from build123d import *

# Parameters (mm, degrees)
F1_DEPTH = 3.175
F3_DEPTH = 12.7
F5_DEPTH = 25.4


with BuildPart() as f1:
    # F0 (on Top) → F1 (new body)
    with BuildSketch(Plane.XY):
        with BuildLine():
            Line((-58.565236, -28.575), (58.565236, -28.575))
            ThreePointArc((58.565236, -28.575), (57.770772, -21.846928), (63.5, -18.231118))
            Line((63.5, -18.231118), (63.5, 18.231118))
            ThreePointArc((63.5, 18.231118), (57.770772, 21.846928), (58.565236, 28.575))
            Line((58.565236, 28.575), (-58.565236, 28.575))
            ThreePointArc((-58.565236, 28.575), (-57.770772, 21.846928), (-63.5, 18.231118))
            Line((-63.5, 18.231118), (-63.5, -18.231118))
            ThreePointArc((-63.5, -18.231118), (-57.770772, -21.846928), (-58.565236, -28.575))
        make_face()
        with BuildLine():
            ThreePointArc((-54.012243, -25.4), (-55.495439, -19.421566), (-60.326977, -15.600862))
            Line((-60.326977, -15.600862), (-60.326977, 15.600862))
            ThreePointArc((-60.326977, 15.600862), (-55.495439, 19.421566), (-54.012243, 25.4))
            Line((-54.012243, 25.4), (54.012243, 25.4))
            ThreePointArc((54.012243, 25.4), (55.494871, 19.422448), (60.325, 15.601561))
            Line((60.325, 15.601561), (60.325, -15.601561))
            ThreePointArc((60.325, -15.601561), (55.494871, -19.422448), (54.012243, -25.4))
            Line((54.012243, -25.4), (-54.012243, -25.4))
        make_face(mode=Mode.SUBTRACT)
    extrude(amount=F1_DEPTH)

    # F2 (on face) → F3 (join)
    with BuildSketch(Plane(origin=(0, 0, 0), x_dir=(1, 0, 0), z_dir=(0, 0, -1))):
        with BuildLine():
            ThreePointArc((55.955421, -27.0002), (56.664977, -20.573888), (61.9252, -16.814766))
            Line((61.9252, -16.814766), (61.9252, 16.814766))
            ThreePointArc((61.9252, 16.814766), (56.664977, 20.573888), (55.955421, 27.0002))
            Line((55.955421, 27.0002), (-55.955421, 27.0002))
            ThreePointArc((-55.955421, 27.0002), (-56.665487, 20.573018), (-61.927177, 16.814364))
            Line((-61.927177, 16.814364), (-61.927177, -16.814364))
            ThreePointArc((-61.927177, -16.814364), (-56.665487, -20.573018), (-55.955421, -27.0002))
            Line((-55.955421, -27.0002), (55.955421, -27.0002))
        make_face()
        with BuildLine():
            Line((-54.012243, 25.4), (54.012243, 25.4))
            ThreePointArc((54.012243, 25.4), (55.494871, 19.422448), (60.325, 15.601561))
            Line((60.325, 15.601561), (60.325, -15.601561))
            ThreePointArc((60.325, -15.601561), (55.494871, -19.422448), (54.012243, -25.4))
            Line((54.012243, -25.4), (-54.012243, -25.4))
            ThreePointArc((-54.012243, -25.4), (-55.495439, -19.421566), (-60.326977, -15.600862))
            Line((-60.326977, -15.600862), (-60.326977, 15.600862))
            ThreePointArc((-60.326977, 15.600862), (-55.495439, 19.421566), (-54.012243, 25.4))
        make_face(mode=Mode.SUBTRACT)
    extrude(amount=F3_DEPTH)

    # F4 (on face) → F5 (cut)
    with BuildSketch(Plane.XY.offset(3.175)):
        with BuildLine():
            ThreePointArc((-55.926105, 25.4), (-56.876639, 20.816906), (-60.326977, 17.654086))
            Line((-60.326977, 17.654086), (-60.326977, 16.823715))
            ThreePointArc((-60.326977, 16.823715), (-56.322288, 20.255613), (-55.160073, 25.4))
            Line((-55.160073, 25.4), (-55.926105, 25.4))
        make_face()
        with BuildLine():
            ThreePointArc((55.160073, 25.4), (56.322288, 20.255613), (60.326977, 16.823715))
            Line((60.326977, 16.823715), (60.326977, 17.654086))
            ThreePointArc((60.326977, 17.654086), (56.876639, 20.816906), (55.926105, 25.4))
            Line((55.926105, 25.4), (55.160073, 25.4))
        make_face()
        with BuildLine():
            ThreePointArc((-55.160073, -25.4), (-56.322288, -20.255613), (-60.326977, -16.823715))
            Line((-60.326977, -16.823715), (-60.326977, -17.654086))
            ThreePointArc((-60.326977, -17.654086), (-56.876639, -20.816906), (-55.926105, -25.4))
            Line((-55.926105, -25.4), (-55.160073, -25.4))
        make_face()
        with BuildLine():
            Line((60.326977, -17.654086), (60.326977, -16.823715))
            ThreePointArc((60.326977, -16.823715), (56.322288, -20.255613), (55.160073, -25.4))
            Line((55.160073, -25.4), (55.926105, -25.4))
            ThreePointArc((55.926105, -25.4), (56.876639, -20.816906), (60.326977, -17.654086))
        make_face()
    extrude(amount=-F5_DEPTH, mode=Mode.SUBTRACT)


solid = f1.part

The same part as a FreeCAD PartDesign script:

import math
import FreeCAD as App
import Part
import Sketcher

V = App.Vector
Q = App.Units.Quantity

doc = App.newDocument("Part")
params = doc.addObject("Spreadsheet::Sheet", "Params")
for row, (alias, value) in enumerate([
    ("sketch1_radius", "0.25 in"),
    ("sketch1_radius2", "0.3749999 in"),
    ("sketch1_width", "0.1249999 in"),
    ("pad1_length", "0.125 in"),
    ("sketch2_radius", "0.312 in"),
    ("sketch2_radius2", "0.3749999 in"),
    ("pad2_length", "0.5 in"),
    ("sketch3_radius", "0.3000001 in"),
    ("sketch3_radius2", "0.33 in"),
    ("pocket1_length", "1 in"),
], start=1):
    params.set(f"A{row}", alias)
    params.set(f"B{row}", "=" + value)
    params.setAlias(f"B{row}", alias)

body = doc.addObject("PartDesign::Body", "Body")

sketch1 = body.newObject("Sketcher::SketchObject", "Sketch")
sketch1.AttachmentSupport = (doc.getObject("XY_Plane"), [""])
sketch1.MapMode = "FlatFace"
sketch1.addGeometry([
    Part.LineSegment(V(-59, -29, 0), V(59, -29, 0)),
    Part.ArcOfCircle(Part.Circle(V(64, -25, 0), V(0, 0, 1), 6), math.radians(90), math.radians(219)),
    Part.LineSegment(V(64, -18, 0), V(64, 18, 0)),
    Part.ArcOfCircle(Part.Circle(V(64, 25, 0), V(0, 0, 1), 6), math.radians(141), math.radians(270)),
    Part.LineSegment(V(59, 29, 0), V(-59, 29, 0)),
    Part.ArcOfCircle(Part.Circle(V(-64, 25, 0), V(0, 0, 1), 6), math.radians(-90), math.radians(39)),
    Part.LineSegment(V(-64, 18, 0), V(-64, -18, 0)),
    Part.ArcOfCircle(Part.Circle(V(-64, -25, 0), V(0, 0, 1), 6), math.radians(-39), math.radians(90)),
    Part.LineSegment(V(54, -25, 0), V(-54, -25, 0)),
    Part.ArcOfCircle(Part.Circle(V(-64, -25, 0), V(0, 0, 1), 10), math.radians(-5), math.radians(71)),
    Part.LineSegment(V(-60, -16, 0), V(-60, 16, 0)),
    Part.ArcOfCircle(Part.Circle(V(-64, 25, 0), V(0, 0, 1), 10), math.radians(-71), math.radians(5)),
    Part.LineSegment(V(-54, 25, 0), V(54, 25, 0)),
    Part.ArcOfCircle(Part.Circle(V(64, 25, 0), V(0, 0, 1), 10), math.radians(175), math.radians(251)),
    Part.LineSegment(V(60, 16, 0), V(60, -16, 0)),
    Part.ArcOfCircle(Part.Circle(V(64, -25, 0), V(0, 0, 1), 10), math.radians(109), math.radians(185)),
], False)
sketch1.addConstraint([
    Sketcher.Constraint("Coincident", 0, 2, 1, 2),
    Sketcher.Constraint("Coincident", 1, 1, 2, 1),
    Sketcher.Constraint("Coincident", 2, 2, 3, 2),
    Sketcher.Constraint("Coincident", 3, 1, 4, 1),
    Sketcher.Constraint("Coincident", 4, 2, 5, 2),
    Sketcher.Constraint("Coincident", 5, 1, 6, 1),
    Sketcher.Constraint("Coincident", 6, 2, 7, 2),
    Sketcher.Constraint("Coincident", 7, 1, 0, 1),
    Sketcher.Constraint("Coincident", 8, 2, 9, 1),
    Sketcher.Constraint("Coincident", 9, 2, 10, 1),
    Sketcher.Constraint("Coincident", 10, 2, 11, 1),
    Sketcher.Constraint("Coincident", 11, 2, 12, 1),
    Sketcher.Constraint("Coincident", 12, 2, 13, 1),
    Sketcher.Constraint("Coincident", 13, 2, 14, 1),
    Sketcher.Constraint("Coincident", 14, 2, 15, 1),
    Sketcher.Constraint("Coincident", 15, 2, 8, 1),
    Sketcher.Constraint("Horizontal", 0),
    Sketcher.Constraint("Vertical", 2),
    Sketcher.Constraint("Horizontal", 4),
    Sketcher.Constraint("Vertical", 6),
    Sketcher.Constraint("Horizontal", 8),
    Sketcher.Constraint("Vertical", 10),
    Sketcher.Constraint("Horizontal", 12),
    Sketcher.Constraint("Vertical", 14),
    Sketcher.Constraint("Coincident", 9, 3, 7, 3),
    Sketcher.Constraint("Coincident", 11, 3, 5, 3),
    Sketcher.Constraint("Coincident", 13, 3, 3, 3),
    Sketcher.Constraint("Coincident", 15, 3, 1, 3),
    Sketcher.Constraint("Equal", 1, 3),
    Sketcher.Constraint("Equal", 3, 5),
    Sketcher.Constraint("Equal", 5, 7),
    Sketcher.Constraint("Equal", 9, 11),
    Sketcher.Constraint("Equal", 11, 13),
    Sketcher.Constraint("Equal", 13, 15),
    Sketcher.Constraint("Symmetric", 1, 3, 5, 3, -1, 1),
    Sketcher.Constraint("Symmetric", 3, 3, 7, 3, -1, 1),
    Sketcher.Constraint("Symmetric", 3, 3, 5, 3, -2),
    Sketcher.Constraint("Vertical", 0, 2, 3, 1),
    Sketcher.Constraint("Vertical", 8, 2, 11, 2),
    Sketcher.Constraint("Radius", 1, Q("0.25 in")),
    Sketcher.Constraint("DistanceY", 8, 2, -1, 1, Q("1 in")),
    Sketcher.Constraint("Radius", 9, Q("0.3749999 in")),
    Sketcher.Constraint("DistanceX", -1, 1, 1, 1, Q("2.5 in")),
    Sketcher.Constraint("DistanceX", 5, 1, -1, 1, Q("2.5 in")),
    Sketcher.Constraint("DistanceY", 0, 2, -1, 1, Q("1.125 in")),
    Sketcher.Constraint("DistanceX", -1, 1, 13, 2, Q("2.375 in")),
    Sketcher.Constraint("DistanceX", 9, 3, 9, 2, Q("0.1249999 in")),
    Sketcher.Constraint("DistanceX", 0, 1, 0, 2, 117.130472),
    Sketcher.Constraint("DistanceX", 8, 2, 8, 1, 108.024486),
])
sketch1.setExpression("Constraints[39]", "Params.sketch1_radius")
sketch1.setExpression("Constraints[41]", "Params.sketch1_radius2")
sketch1.setExpression("Constraints[46]", "Params.sketch1_width")
pad1 = body.newObject("PartDesign::Pad", "Pad")
pad1.Profile = sketch1
pad1.setExpression("Length", "Params.pad1_length")

sketch2 = body.newObject("Sketcher::SketchObject", "Sketch001")
sketch2.AttachmentSupport = (doc.getObject("XY_Plane"), [""])
sketch2.MapMode = "FlatFace"
sketch2.addGeometry([
    Part.ArcOfCircle(Part.Circle(V(64, 25, 0), V(0, 0, 1), 8), math.radians(162), math.radians(259)),
    Part.LineSegment(V(62, 17, 0), V(62, -17, 0)),
    Part.ArcOfCircle(Part.Circle(V(64, -25, 0), V(0, 0, 1), 8), math.radians(101), math.radians(198)),
    Part.LineSegment(V(56, -27, 0), V(-56, -27, 0)),
    Part.ArcOfCircle(Part.Circle(V(-64, -25, 0), V(0, 0, 1), 8), math.radians(-18), math.radians(79)),
    Part.LineSegment(V(-62, -17, 0), V(-62, 17, 0)),
    Part.ArcOfCircle(Part.Circle(V(-64, 25, 0), V(0, 0, 1), 8), math.radians(-79), math.radians(18)),
    Part.LineSegment(V(-56, 27, 0), V(56, 27, 0)),
    Part.ArcOfCircle(Part.Circle(V(-64, -25, 0), V(0, 0, 1), 10), math.radians(-5), math.radians(71)),
    Part.LineSegment(V(-54, -25, 0), V(54, -25, 0)),
    Part.ArcOfCircle(Part.Circle(V(64, -25, 0), V(0, 0, 1), 10), math.radians(109), math.radians(185)),
    Part.LineSegment(V(60, -16, 0), V(60, 16, 0)),
    Part.ArcOfCircle(Part.Circle(V(64, 25, 0), V(0, 0, 1), 10), math.radians(175), math.radians(251)),
    Part.LineSegment(V(54, 25, 0), V(-54, 25, 0)),
    Part.ArcOfCircle(Part.Circle(V(-64, 25, 0), V(0, 0, 1), 10), math.radians(-71), math.radians(5)),
    Part.LineSegment(V(-60, 16, 0), V(-60, -16, 0)),
], False)
sketch2.addConstraint([
    Sketcher.Constraint("Coincident", 0, 2, 1, 1),
    Sketcher.Constraint("Coincident", 1, 2, 2, 1),
    Sketcher.Constraint("Coincident", 2, 2, 3, 1),
    Sketcher.Constraint("Coincident", 3, 2, 4, 1),
    Sketcher.Constraint("Coincident", 4, 2, 5, 1),
    Sketcher.Constraint("Coincident", 5, 2, 6, 1),
    Sketcher.Constraint("Coincident", 6, 2, 7, 1),
    Sketcher.Constraint("Coincident", 7, 2, 0, 1),
    Sketcher.Constraint("Coincident", 8, 1, 9, 1),
    Sketcher.Constraint("Coincident", 9, 2, 10, 2),
    Sketcher.Constraint("Coincident", 10, 1, 11, 1),
    Sketcher.Constraint("Coincident", 11, 2, 12, 2),
    Sketcher.Constraint("Coincident", 12, 1, 13, 1),
    Sketcher.Constraint("Coincident", 13, 2, 14, 2),
    Sketcher.Constraint("Coincident", 14, 1, 15, 1),
    Sketcher.Constraint("Coincident", 15, 2, 8, 2),
    Sketcher.Constraint("Vertical", 1),
    Sketcher.Constraint("Horizontal", 3),
    Sketcher.Constraint("Vertical", 5),
    Sketcher.Constraint("Horizontal", 7),
    Sketcher.Constraint("Horizontal", 9),
    Sketcher.Constraint("Vertical", 11),
    Sketcher.Constraint("Horizontal", 13),
    Sketcher.Constraint("Vertical", 15),
    Sketcher.Constraint("Coincident", 8, 3, 4, 3),
    Sketcher.Constraint("Coincident", 10, 3, 2, 3),
    Sketcher.Constraint("Coincident", 12, 3, 0, 3),
    Sketcher.Constraint("Coincident", 14, 3, 6, 3),
    Sketcher.Constraint("Equal", 0, 2),
    Sketcher.Constraint("Equal", 2, 4),
    Sketcher.Constraint("Equal", 4, 6),
    Sketcher.Constraint("Equal", 8, 10),
    Sketcher.Constraint("Equal", 10, 12),
    Sketcher.Constraint("Equal", 12, 14),
    Sketcher.Constraint("Symmetric", 0, 3, 4, 3, -1, 1),
    Sketcher.Constraint("Symmetric", 2, 3, 6, 3, -1, 1),
    Sketcher.Constraint("Symmetric", 2, 3, 4, 3, -2),
    Sketcher.Constraint("Vertical", 3, 2, 6, 2),
    Sketcher.Constraint("Vertical", 9, 2, 12, 1),
    Sketcher.Constraint("DistanceY", 8, 1, -1, 1, Q("1 in")),
    Sketcher.Constraint("Radius", 0, Q("0.312 in")),
    Sketcher.Constraint("Radius", 8, Q("0.3749999 in")),
    Sketcher.Constraint("DistanceX", -1, 1, 0, 2, Q("2.438 in")),
    Sketcher.Constraint("DistanceY", 2, 2, -1, 1, Q("1.063 in")),
    Sketcher.Constraint("DistanceX", -1, 1, 10, 1, Q("2.375 in")),
    Sketcher.Constraint("DistanceX", 8, 3, 4, 2, Q("0.0619999 in")),
    Sketcher.Constraint("DistanceX", 5, 2, 14, 1, Q("0.063 in")),
    Sketcher.Constraint("DistanceY", 1, 2, 1, 1, 33.629532),
    Sketcher.Constraint("DistanceY", 5, 1, 5, 2, 33.628728),
])
sketch2.setExpression("Constraints[40]", "Params.sketch2_radius")
sketch2.setExpression("Constraints[41]", "Params.sketch2_radius2")
pad2 = body.newObject("PartDesign::Pad", "Pad001")
pad2.Profile = sketch2
pad2.setExpression("Length", "Params.pad2_length")
pad2.Reversed = True

sketch3 = body.newObject("Sketcher::SketchObject", "Sketch002")
sketch3.AttachmentSupport = (doc.getObject("XY_Plane"), [""])
sketch3.MapMode = "FlatFace"
sketch3.AttachmentOffset = App.Placement(V(0, 0, 0.125 * 25.4), App.Rotation())
sketch3.addGeometry([
    Part.ArcOfCircle(Part.Circle(V(-63.5, 24.6, 0), V(0, 0, 1), 7.6), math.radians(-65), math.radians(6)),
    Part.LineSegment(V(-60.3, 17.7, 0), V(-60.3, 16.8, 0)),
    Part.ArcOfCircle(Part.Circle(V(-63.5, 24.6, 0), V(0, 0, 1), 8.4), math.radians(-68), math.radians(6)),
    Part.LineSegment(V(-55.2, 25.4, 0), V(-55.9, 25.4, 0)),
    Part.ArcOfCircle(Part.Circle(V(63.5, 24.6, 0), V(0, 0, 1), 8.4), math.radians(174), math.radians(248)),
    Part.LineSegment(V(60.3, 16.8, 0), V(60.3, 17.7, 0)),
    Part.ArcOfCircle(Part.Circle(V(63.5, 24.6, 0), V(0, 0, 1), 7.6), math.radians(174), math.radians(245)),
    Part.LineSegment(V(55.9, 25.4, 0), V(55.2, 25.4, 0)),
    Part.ArcOfCircle(Part.Circle(V(-63.5, -24.6, 0), V(0, 0, 1), 8.4), math.radians(-6), math.radians(68)),
    Part.LineSegment(V(-60.3, -16.8, 0), V(-60.3, -17.7, 0)),
    Part.ArcOfCircle(Part.Circle(V(-63.5, -24.6, 0), V(0, 0, 1), 7.6), math.radians(-6), math.radians(65)),
    Part.LineSegment(V(-55.9, -25.4, 0), V(-55.2, -25.4, 0)),
    Part.LineSegment(V(60.3, -17.7, 0), V(60.3, -16.8, 0)),
    Part.ArcOfCircle(Part.Circle(V(63.5, -24.6, 0), V(0, 0, 1), 8.4), math.radians(112), math.radians(186)),
    Part.LineSegment(V(55.2, -25.4, 0), V(55.9, -25.4, 0)),
    Part.ArcOfCircle(Part.Circle(V(63.5, -24.6, 0), V(0, 0, 1), 7.6), math.radians(115), math.radians(186)),
], False)
sketch3.addConstraint([
    Sketcher.Constraint("Coincident", 0, 1, 1, 1),
    Sketcher.Constraint("Coincident", 1, 2, 2, 1),
    Sketcher.Constraint("Coincident", 2, 2, 3, 1),
    Sketcher.Constraint("Coincident", 3, 2, 0, 2),
    Sketcher.Constraint("Coincident", 4, 2, 5, 1),
    Sketcher.Constraint("Coincident", 5, 2, 6, 2),
    Sketcher.Constraint("Coincident", 6, 1, 7, 1),
    Sketcher.Constraint("Coincident", 7, 2, 4, 1),
    Sketcher.Constraint("Coincident", 8, 2, 9, 1),
    Sketcher.Constraint("Coincident", 9, 2, 10, 2),
    Sketcher.Constraint("Coincident", 10, 1, 11, 1),
    Sketcher.Constraint("Coincident", 11, 2, 8, 1),
    Sketcher.Constraint("Coincident", 12, 2, 13, 1),
    Sketcher.Constraint("Coincident", 13, 2, 14, 1),
    Sketcher.Constraint("Coincident", 14, 2, 15, 2),
    Sketcher.Constraint("Coincident", 15, 1, 12, 1),
    Sketcher.Constraint("Vertical", 1),
    Sketcher.Constraint("Horizontal", 3),
    Sketcher.Constraint("Vertical", 5),
    Sketcher.Constraint("Horizontal", 7),
    Sketcher.Constraint("Vertical", 9),
    Sketcher.Constraint("Horizontal", 11),
    Sketcher.Constraint("Vertical", 12),
    Sketcher.Constraint("Horizontal", 14),
    Sketcher.Constraint("Coincident", 2, 3, 0, 3),
    Sketcher.Constraint("Coincident", 6, 3, 4, 3),
    Sketcher.Constraint("Coincident", 10, 3, 8, 3),
    Sketcher.Constraint("Coincident", 15, 3, 13, 3),
    Sketcher.Constraint("Equal", 2, 4),
    Sketcher.Constraint("Equal", 0, 6),
    Sketcher.Constraint("Equal", 4, 8),
    Sketcher.Constraint("Equal", 6, 10),
    Sketcher.Constraint("Equal", 8, 13),
    Sketcher.Constraint("Equal", 10, 15),
    Sketcher.Constraint("Symmetric", 4, 3, 8, 3, -1, 1),
    Sketcher.Constraint("Symmetric", 0, 3, 13, 3, -1, 1),
    Sketcher.Constraint("Symmetric", 0, 3, 4, 3, -2),
    Sketcher.Constraint("Horizontal", 1, 2, 4, 2),
    Sketcher.Constraint("Horizontal", 3, 2, 6, 1),
    Sketcher.Constraint("Horizontal", 8, 2, 12, 2),
    Sketcher.Constraint("Horizontal", 11, 2, 13, 2),
    Sketcher.Constraint("Vertical", 1, 2, 8, 2),
    Sketcher.Constraint("Vertical", 3, 2, 10, 1),
    Sketcher.Constraint("Radius", 0, Q("0.3000001 in")),
    Sketcher.Constraint("Radius", 2, Q("0.33 in")),
    Sketcher.Constraint("DistanceY", -1, 1, 2, 2, Q("1 in")),
    Sketcher.Constraint("DistanceX", 2, 3, 0, 1, Q("0.125 in")),
    Sketcher.Constraint("DistanceY", 8, 2, 0, 1, 34.477801),
    Sketcher.Constraint("DistanceX", 0, 3, -1, 1, 63.501978),
])
sketch3.setExpression("Constraints[43]", "Params.sketch3_radius")
sketch3.setExpression("Constraints[44]", "Params.sketch3_radius2")
pocket1 = body.newObject("PartDesign::Pocket", "Pocket")
pocket1.Profile = sketch3
pocket1.setExpression("Length", "Params.pocket1_length")

doc.recompute()
